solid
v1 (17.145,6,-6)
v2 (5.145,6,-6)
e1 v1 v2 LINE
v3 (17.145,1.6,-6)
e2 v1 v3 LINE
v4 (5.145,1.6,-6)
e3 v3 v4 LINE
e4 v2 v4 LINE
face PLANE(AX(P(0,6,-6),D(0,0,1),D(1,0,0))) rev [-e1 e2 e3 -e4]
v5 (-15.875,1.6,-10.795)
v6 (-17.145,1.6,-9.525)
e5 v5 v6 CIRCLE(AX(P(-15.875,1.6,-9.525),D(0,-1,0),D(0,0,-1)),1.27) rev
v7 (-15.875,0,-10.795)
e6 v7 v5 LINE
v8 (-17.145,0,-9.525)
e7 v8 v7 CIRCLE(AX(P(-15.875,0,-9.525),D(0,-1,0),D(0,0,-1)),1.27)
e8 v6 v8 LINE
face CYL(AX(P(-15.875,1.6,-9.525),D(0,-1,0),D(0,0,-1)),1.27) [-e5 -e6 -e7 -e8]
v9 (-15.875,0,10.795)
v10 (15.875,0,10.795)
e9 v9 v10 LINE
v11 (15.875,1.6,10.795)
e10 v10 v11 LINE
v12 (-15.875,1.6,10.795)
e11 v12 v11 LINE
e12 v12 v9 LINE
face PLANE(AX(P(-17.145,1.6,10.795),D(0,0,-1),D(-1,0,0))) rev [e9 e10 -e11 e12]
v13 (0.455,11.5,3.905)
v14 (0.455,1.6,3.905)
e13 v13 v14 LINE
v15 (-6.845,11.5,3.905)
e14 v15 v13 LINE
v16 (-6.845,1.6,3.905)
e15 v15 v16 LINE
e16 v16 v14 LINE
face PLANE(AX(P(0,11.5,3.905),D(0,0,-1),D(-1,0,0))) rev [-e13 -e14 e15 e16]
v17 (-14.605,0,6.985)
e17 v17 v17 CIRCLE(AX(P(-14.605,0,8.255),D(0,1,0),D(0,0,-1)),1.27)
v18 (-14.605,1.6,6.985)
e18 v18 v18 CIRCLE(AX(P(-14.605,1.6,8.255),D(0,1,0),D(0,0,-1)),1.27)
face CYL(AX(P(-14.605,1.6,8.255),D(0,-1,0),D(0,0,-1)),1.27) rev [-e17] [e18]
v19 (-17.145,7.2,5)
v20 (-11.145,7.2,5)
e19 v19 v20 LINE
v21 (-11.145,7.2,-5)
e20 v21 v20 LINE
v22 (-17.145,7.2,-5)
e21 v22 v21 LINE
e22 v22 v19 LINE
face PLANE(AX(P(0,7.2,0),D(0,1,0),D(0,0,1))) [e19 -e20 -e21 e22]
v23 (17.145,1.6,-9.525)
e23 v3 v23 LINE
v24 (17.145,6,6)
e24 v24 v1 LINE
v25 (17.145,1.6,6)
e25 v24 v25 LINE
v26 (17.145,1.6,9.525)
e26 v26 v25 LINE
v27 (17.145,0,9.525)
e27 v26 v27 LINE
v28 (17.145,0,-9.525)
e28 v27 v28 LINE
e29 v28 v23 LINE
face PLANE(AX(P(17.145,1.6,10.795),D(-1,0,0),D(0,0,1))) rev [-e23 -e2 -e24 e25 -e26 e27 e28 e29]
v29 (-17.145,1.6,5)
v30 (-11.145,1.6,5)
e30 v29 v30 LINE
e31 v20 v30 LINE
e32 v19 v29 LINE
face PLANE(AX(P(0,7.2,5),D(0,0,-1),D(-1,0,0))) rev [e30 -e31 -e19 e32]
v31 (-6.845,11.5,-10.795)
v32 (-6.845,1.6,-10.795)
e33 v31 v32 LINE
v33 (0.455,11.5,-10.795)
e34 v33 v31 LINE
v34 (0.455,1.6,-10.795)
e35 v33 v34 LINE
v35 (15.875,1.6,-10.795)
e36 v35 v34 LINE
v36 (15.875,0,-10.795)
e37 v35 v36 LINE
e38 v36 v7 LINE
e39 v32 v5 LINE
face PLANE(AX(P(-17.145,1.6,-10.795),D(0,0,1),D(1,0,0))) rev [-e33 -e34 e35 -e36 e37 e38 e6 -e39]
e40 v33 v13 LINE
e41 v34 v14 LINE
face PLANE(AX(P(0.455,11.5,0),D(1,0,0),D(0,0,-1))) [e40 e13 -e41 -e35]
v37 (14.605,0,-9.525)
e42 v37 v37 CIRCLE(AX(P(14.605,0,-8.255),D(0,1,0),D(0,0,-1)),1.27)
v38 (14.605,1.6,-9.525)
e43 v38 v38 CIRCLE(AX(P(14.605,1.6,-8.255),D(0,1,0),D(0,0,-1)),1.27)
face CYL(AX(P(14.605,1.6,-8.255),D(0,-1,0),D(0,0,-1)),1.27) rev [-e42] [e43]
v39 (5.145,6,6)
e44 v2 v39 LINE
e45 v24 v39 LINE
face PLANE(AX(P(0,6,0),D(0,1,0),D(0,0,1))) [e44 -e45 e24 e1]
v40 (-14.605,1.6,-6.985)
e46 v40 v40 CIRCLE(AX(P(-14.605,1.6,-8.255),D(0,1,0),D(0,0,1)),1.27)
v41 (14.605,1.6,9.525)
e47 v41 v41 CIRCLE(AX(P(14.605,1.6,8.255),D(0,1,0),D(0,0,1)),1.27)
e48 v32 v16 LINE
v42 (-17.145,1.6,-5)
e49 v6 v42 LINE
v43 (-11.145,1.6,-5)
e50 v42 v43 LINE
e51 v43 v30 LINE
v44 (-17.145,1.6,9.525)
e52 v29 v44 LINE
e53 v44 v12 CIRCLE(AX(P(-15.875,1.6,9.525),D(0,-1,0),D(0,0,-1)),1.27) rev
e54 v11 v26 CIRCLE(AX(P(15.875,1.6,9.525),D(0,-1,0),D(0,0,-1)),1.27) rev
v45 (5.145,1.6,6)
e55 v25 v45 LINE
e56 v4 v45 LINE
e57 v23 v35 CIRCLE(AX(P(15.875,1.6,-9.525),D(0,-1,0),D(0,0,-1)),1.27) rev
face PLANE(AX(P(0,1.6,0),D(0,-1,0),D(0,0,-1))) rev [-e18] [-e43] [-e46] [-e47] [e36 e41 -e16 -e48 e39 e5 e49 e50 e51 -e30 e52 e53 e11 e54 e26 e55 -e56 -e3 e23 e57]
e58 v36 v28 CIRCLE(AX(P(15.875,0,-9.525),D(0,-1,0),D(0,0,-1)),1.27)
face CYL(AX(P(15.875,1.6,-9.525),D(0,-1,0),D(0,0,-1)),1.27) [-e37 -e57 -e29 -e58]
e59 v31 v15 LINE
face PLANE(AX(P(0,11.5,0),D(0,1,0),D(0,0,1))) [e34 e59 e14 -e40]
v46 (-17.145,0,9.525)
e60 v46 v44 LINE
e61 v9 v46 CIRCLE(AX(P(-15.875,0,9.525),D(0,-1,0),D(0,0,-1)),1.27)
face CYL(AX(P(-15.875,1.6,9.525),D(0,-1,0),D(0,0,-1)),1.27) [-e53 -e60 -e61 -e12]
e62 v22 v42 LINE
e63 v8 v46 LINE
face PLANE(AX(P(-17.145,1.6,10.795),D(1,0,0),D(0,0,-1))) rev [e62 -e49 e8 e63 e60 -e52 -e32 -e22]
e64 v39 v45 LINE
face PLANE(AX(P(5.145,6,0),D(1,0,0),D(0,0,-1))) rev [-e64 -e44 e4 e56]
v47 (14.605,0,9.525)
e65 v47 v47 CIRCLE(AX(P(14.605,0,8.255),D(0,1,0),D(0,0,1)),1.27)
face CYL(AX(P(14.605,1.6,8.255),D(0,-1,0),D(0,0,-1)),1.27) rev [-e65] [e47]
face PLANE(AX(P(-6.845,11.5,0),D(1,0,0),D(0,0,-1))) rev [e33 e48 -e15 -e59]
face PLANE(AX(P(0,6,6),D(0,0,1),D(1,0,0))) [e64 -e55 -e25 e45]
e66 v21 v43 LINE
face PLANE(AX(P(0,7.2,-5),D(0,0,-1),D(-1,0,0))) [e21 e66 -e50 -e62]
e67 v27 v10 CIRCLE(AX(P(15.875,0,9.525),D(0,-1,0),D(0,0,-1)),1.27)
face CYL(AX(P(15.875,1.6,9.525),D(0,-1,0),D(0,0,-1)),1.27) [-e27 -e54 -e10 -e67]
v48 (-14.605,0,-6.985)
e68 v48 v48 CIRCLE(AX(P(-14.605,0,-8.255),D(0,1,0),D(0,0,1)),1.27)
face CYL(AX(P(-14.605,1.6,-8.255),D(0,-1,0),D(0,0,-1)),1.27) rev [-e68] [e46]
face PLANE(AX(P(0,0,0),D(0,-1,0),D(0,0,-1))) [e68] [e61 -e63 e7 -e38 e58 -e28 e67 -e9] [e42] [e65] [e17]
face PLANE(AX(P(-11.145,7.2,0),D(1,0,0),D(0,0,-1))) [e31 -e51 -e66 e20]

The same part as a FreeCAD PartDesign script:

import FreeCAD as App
import Part
import Sketcher

V = App.Vector
Q = App.Units.Quantity


def edges_at(feature, points):
    """Names of the edges that pass closest to the given points."""
    edges = feature.Shape.Edges
    near = lambda p: min(range(len(edges)), key=lambda i: edges[i].distToShape(Part.Vertex(*p))[0])
    return sorted({f"Edge{near(p) + 1}" for p in points})

doc = App.newDocument("Part")
body = doc.addObject("PartDesign::Body", "Body")

sketch1 = body.newObject("Sketcher::SketchObject", "Sketch")
sketch1.AttachmentSupport = (doc.getObject("XZ_Plane"), [""])
sketch1.MapMode = "FlatFace"
sketch1.addGeometry([
    Part.LineSegment(V(-17.145, -10.795, 0), V(-17.145, 10.795, 0)),
    Part.LineSegment(V(-17.145, 10.795, 0), V(17.145, 10.795, 0)),
    Part.LineSegment(V(17.145, 10.795, 0), V(17.145, -10.795, 0)),
    Part.LineSegment(V(17.145, -10.795, 0), V(-17.145, -10.795, 0)),
    Part.Circle(V(-14.605, 8.255, 0), V(0, 0, 1), 1.27),
    Part.Circle(V(14.605, 8.255, 0), V(0, 0, 1), 1.27),
    Part.Circle(V(-14.605, -8.255, 0), V(0, 0, 1), 1.27),
    Part.Circle(V(14.605, -8.255, 0), V(0, 0, 1), 1.27),
], False)
sketch1.addConstraint([
    Sketcher.Constraint("Coincident", 0, 2, 1, 1),
    Sketcher.Constraint("Coincident", 1, 2, 2, 1),
    Sketcher.Constraint("Coincident", 2, 2, 3, 1),
    Sketcher.Constraint("Coincident", 3, 2, 0, 1),
    Sketcher.Constraint("Vertical", 0),
    Sketcher.Constraint("Horizontal", 1),
    Sketcher.Constraint("Vertical", 2),
    Sketcher.Constraint("Horizontal", 3),
    Sketcher.Constraint("Equal", 4, 5),
    Sketcher.Constraint("Equal", 5, 6),
    Sketcher.Constraint("Equal", 6, 7),
    Sketcher.Constraint("Symmetric", 5, 3, 6, 3, -1, 1),
    Sketcher.Constraint("Symmetric", 4, 3, 7, 3, -1, 1),
    Sketcher.Constraint("Symmetric", 0, 2, 2, 2, -1, 1),
    Sketcher.Constraint("Symmetric", 4, 3, 5, 3, -2),
    Sketcher.Constraint("Diameter", 4, Q("2.54 mm")),
    Sketcher.Constraint("DistanceX", 1, 1, 1, 2, Q("34.29 mm")),
    Sketcher.Constraint("DistanceY", 0, 1, 0, 2, Q("21.59 mm")),
    Sketcher.Constraint("DistanceX", 4, 3, 5, 3, Q("29.21 mm")),
    Sketcher.Constraint("DistanceY", 6, 3, 4, 3, Q("16.51 mm")),
])
pad1 = body.newObject("PartDesign::Pad", "Pad")
pad1.Profile = sketch1
pad1.Length = 1.6
pad1.Reversed = True
doc.recompute()

fillet = body.newObject("PartDesign::Fillet", "Fillet")
fillet.Base = (pad1, edges_at(pad1, [
    (17.145, 0.8, 10.795),
    (-17.145, 0.8, 10.795),
    (-17.145, 0.8, -10.795),
    (17.145, 0.8, -10.795),
]))
fillet.Radius = 1.27

sketch2 = body.newObject("Sketcher::SketchObject", "Sketch001")
sketch2.AttachmentSupport = (doc.getObject("XZ_Plane"), [""])
sketch2.MapMode = "FlatFace"
sketch2.AttachmentOffset = App.Placement(V(0, 0, -1.6), App.Rotation())
sketch2.addGeometry([
    Part.LineSegment(V(-17.145, -5, 0), V(-17.145, 5, 0)),
    Part.LineSegment(V(-17.145, 5, 0), V(-11.145, 5, 0)),
    Part.LineSegment(V(-11.145, 5, 0), V(-11.145, -5, 0)),
    Part.LineSegment(V(-11.145, -5, 0), V(-17.145, -5, 0)),
], False)
sketch2.addConstraint([
    Sketcher.Constraint("Coincident", 0, 2, 1, 1),
    Sketcher.Constraint("Coincident", 1, 2, 2, 1),
    Sketcher.Constraint("Coincident", 2, 2, 3, 1),
    Sketcher.Constraint("Coincident", 3, 2, 0, 1),
    Sketcher.Constraint("Vertical", 0),
    Sketcher.Constraint("Horizontal", 1),
    Sketcher.Constraint("Vertical", 2),
    Sketcher.Constraint("Horizontal", 3),
    Sketcher.Constraint("DistanceX", 1, 1, 1, 2, Q("6 mm")),
    Sketcher.Constraint("DistanceY", 0, 1, 0, 2, Q("10 mm")),
    Sketcher.Constraint("DistanceY", -1, 1, 0, 2, Q("5 mm")),
    Sketcher.Constraint("DistanceX", 0, 2, -1, 1, Q("17.145 mm")),
])
pad2 = body.newObject("PartDesign::Pad", "Pad001")
pad2.Profile = sketch2
pad2.Length = 5.6
pad2.Reversed = True

sketch3 = body.newObject("Sketcher::SketchObject", "Sketch002")
sketch3.AttachmentSupport = (doc.getObject("XZ_Plane"), [""])
sketch3.MapMode = "FlatFace"
sketch3.AttachmentOffset = App.Placement(V(0, 0, -1.6), App.Rotation())
sketch3.addGeometry([
    Part.LineSegment(V(5.145, -6, 0), V(5.145, 6, 0)),
    Part.LineSegment(V(5.145, 6, 0), V(17.145, 6, 0)),
    Part.LineSegment(V(17.145, 6, 0), V(17.145, -6, 0)),
    Part.LineSegment(V(17.145, -6, 0), V(5.145, -6, 0)),
], False)
sketch3.addConstraint([
    Sketcher.Constraint("Coincident", 0, 2, 1, 1),
    Sketcher.Constraint("Coincident", 1, 2, 2, 1),
    Sketcher.Constraint("Coincident", 2, 2, 3, 1),
    Sketcher.Constraint("Coincident", 3, 2, 0, 1),
    Sketcher.Constraint("Vertical", 0),
    Sketcher.Constraint("Horizontal", 1),
    Sketcher.Constraint("Vertical", 2),
    Sketcher.Constraint("Horizontal", 3),
    Sketcher.Constraint("Equal", 3, 0),
    Sketcher.Constraint("DistanceX", 1, 1, 1, 2, Q("12 mm")),
    Sketcher.Constraint("DistanceY", -1, 1, 0, 2, Q("6 mm")),
    Sketcher.Constraint("DistanceX", -1, 1, 0, 2, Q("5.145 mm")),
])
pad3 = body.newObject("PartDesign::Pad", "Pad002")
pad3.Profile = sketch3
pad3.Length = 4.4
pad3.Reversed = True

sketch4 = body.newObject("Sketcher::SketchObject", "Sketch003")
sketch4.AttachmentSupport = (doc.getObject("XZ_Plane"), [""])
sketch4.MapMode = "FlatFace"
sketch4.AttachmentOffset = App.Placement(V(0, 0, -1.6), App.Rotation())
sketch4.addGeometry([
    Part.LineSegment(V(-6.845, -10.795, 0), V(-6.845, 3.905, 0)),
    Part.LineSegment(V(-6.845, 3.905, 0), V(0.455, 3.905, 0)),
    Part.LineSegment(V(0.455, 3.905, 0), V(0.455, -10.795, 0)),
    Part.LineSegment(V(0.455, -10.795, 0), V(-6.845, -10.795, 0)),
], False)
sketch4.addConstraint([
    Sketcher.Constraint("Coincident", 0, 2, 1, 1),
    Sketcher.Constraint("Coincident", 1, 2, 2, 1),
    Sketcher.Constraint("Coincident", 2, 2, 3, 1),
    Sketcher.Constraint("Coincident", 3, 2, 0, 1),
    Sketcher.Constraint("Vertical", 0),
    Sketcher.Constraint("Horizontal", 1),
    Sketcher.Constraint("Vertical", 2),
    Sketcher.Constraint("Horizontal", 3),
    Sketcher.Constraint("DistanceX", 1, 1, 1, 2, Q("7.3 mm")),
    Sketcher.Constraint("DistanceY", 0, 1, 0, 2, Q("14.7 mm")),
    Sketcher.Constraint("DistanceX", 0, 2, -1, 1, Q("6.845 mm")),
    Sketcher.Constraint("DistanceY", -1, 1, 0, 2, Q("3.905 mm")),
])
pad4 = body.newObject("PartDesign::Pad", "Pad003")
pad4.Profile = sketch4
pad4.Length = 9.9
pad4.Reversed = True

doc.recompute()
